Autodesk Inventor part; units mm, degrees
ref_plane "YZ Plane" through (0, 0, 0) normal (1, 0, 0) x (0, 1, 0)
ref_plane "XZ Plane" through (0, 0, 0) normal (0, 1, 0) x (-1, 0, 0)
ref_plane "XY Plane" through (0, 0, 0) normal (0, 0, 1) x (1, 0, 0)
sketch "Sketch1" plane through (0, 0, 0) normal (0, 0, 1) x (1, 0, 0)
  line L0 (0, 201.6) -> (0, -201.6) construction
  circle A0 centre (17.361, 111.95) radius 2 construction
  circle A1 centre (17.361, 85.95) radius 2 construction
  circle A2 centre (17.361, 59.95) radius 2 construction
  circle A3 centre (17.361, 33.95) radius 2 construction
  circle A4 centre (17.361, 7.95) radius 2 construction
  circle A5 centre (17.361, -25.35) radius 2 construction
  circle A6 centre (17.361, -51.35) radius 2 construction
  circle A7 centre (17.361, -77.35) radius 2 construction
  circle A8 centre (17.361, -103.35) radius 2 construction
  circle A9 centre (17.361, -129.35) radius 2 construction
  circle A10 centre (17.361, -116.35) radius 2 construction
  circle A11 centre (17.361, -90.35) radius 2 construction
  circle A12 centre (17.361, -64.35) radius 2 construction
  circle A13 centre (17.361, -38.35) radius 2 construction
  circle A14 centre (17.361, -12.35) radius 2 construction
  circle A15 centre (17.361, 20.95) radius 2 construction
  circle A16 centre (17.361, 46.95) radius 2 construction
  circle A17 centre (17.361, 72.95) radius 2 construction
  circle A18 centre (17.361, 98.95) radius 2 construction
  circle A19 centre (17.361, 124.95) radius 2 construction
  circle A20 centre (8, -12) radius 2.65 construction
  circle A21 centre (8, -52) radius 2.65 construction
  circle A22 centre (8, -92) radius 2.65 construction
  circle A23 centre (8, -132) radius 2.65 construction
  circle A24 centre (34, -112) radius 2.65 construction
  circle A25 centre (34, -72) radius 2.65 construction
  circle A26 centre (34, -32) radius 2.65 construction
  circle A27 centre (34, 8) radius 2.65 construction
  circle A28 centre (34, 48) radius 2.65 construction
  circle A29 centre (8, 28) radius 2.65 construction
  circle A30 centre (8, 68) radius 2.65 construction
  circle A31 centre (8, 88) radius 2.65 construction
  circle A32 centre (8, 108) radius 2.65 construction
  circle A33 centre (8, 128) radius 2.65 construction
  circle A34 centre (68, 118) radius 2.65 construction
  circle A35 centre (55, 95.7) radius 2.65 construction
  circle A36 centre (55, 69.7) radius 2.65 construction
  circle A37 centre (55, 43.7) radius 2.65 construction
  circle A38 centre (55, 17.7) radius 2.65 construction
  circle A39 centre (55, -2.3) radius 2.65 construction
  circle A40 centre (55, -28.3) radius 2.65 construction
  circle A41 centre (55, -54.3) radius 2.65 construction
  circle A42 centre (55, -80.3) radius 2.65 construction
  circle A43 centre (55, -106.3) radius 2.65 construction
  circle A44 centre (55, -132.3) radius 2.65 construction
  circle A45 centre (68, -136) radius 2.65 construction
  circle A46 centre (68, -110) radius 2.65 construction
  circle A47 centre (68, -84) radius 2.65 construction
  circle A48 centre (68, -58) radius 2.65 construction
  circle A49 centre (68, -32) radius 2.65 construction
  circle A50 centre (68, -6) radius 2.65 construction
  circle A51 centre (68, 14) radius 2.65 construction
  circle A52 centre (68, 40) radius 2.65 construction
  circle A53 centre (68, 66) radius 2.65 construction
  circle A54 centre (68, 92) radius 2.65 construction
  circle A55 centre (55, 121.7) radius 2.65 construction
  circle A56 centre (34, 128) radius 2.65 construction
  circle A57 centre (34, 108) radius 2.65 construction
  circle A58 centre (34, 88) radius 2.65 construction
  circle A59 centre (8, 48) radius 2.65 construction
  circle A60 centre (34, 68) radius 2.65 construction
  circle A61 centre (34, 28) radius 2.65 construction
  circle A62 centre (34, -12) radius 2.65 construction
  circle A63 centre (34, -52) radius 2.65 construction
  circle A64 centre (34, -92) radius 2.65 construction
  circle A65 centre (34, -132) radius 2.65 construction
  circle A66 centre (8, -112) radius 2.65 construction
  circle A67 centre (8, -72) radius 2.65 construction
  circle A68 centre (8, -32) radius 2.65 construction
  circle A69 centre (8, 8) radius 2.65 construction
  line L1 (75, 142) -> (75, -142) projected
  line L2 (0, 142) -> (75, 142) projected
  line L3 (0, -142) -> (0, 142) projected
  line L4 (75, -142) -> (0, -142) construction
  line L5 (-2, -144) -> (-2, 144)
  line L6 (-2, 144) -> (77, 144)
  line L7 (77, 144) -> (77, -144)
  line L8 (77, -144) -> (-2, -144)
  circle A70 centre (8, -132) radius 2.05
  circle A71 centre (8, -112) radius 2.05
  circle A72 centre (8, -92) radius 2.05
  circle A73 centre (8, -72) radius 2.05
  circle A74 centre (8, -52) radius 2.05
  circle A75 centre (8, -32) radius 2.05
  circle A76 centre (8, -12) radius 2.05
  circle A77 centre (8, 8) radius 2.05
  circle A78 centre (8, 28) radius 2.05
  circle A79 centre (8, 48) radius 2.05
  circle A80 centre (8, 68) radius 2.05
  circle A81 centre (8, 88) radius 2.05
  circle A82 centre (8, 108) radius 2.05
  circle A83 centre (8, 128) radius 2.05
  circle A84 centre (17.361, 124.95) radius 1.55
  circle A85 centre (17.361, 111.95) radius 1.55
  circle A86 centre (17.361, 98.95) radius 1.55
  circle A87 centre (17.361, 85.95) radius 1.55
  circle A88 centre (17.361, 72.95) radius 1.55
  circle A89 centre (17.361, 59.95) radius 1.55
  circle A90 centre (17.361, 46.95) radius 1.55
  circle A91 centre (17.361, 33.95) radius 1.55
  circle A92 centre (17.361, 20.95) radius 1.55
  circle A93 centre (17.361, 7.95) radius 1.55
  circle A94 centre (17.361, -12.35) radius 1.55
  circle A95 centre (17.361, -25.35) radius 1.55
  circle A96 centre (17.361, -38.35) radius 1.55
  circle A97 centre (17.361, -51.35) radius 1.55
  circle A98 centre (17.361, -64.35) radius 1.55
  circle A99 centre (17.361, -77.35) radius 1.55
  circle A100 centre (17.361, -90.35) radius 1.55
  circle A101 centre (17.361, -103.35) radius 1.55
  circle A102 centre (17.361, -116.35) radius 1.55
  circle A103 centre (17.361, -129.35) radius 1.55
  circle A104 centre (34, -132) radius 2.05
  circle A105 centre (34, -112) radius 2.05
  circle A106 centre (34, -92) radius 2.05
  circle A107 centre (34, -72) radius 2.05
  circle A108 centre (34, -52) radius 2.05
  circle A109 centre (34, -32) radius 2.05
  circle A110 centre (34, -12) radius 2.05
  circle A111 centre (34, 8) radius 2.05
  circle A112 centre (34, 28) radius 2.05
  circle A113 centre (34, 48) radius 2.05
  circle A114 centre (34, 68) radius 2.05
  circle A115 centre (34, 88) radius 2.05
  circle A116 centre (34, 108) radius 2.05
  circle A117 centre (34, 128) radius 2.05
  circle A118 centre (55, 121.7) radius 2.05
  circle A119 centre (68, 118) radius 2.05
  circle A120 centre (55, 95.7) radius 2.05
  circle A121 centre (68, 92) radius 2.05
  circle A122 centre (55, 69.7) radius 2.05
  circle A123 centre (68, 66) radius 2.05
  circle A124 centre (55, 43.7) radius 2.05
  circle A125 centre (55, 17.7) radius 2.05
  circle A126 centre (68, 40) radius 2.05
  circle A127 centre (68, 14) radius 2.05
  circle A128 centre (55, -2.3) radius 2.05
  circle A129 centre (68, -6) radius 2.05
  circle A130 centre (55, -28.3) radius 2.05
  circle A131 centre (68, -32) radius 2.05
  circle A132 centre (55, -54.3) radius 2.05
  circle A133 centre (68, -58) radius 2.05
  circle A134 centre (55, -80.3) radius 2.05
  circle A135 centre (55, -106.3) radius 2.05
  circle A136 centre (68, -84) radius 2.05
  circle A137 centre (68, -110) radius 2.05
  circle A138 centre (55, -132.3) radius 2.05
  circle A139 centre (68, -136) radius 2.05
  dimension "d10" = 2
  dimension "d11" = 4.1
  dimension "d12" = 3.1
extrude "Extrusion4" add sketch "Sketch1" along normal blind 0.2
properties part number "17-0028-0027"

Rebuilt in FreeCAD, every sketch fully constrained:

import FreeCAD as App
import Part
import Sketcher

V = App.Vector
Q = App.Units.Quantity


def add_polygon(sketch, points):
    """Adds a closed chain of lines whose ends are joined by coincident constraints."""
    first, n = sketch.GeometryCount, len(points)
    for a, b in zip(points, points[1:] + points[:1]):
        sketch.addGeometry(Part.LineSegment(App.Vector(*a, 0), App.Vector(*b, 0)), False)
    for i in range(n):
        sketch.addConstraint(Sketcher.Constraint("Coincident", first + i, 2, first + (i + 1) % n, 1))

doc = App.newDocument("Part")
body = doc.addObject("PartDesign::Body", "Body")

# Sketch on XY plane
sketch1 = body.newObject("Sketcher::SketchObject", "Sketch")
sketch1.AttachmentSupport = (doc.getObject("XY_Plane"), [""])
sketch1.MapMode = "FlatFace"
add_polygon(sketch1, [(-2, 144), (-2, -144), (77, -144), (77, 144)])  # lines 0-3
sketch1.addGeometry(Part.Circle(V(8, -132, 0), V(0, 0, 1), 2), False)  # 4
sketch1.addGeometry(Part.Circle(V(17.4, -129.3, 0), V(0, 0, 1), 1.6), False)  # 5
sketch1.addGeometry(Part.Circle(V(8, -112, 0), V(0, 0, 1), 2), False)  # 6
sketch1.addGeometry(Part.Circle(V(17.4, -116.3, 0), V(0, 0, 1), 1.6), False)  # 7
sketch1.addGeometry(Part.Circle(V(8, -92, 0), V(0, 0, 1), 2), False)  # 8
sketch1.addGeometry(Part.Circle(V(17.4, -103.3, 0), V(0, 0, 1), 1.6), False)  # 9
sketch1.addGeometry(Part.Circle(V(17.4, -90.3, 0), V(0, 0, 1), 1.6), False)  # 10
sketch1.addGeometry(Part.Circle(V(17.4, -77.3, 0), V(0, 0, 1), 1.6), False)  # 11
sketch1.addGeometry(Part.Circle(V(34, -132, 0), V(0, 0, 1), 2), False)  # 12
sketch1.addGeometry(Part.Circle(V(34, -112, 0), V(0, 0, 1), 2), False)  # 13
sketch1.addGeometry(Part.Circle(V(34, -92, 0), V(0, 0, 1), 2), False)  # 14
sketch1.addGeometry(Part.Circle(V(8, -72, 0), V(0, 0, 1), 2), False)  # 15
sketch1.addGeometry(Part.Circle(V(17.4, -64.3, 0), V(0, 0, 1), 1.6), False)  # 16
sketch1.addGeometry(Part.Circle(V(8, -52, 0), V(0, 0, 1), 2), False)  # 17
sketch1.addGeometry(Part.Circle(V(17.4, -51.4, 0), V(0, 0, 1), 1.6), False)  # 18
sketch1.addGeometry(Part.Circle(V(17.4, -38.4, 0), V(0, 0, 1), 1.6), False)  # 19
sketch1.addGeometry(Part.Circle(V(8, -32, 0), V(0, 0, 1), 2), False)  # 20
sketch1.addGeometry(Part.Circle(V(17.4, -25.4, 0), V(0, 0, 1), 1.6), False)  # 21
sketch1.addGeometry(Part.Circle(V(8, -12, 0), V(0, 0, 1), 2), False)  # 22
sketch1.addGeometry(Part.Circle(V(17.4, -12.3, 0), V(0, 0, 1), 1.6), False)  # 23
sketch1.addGeometry(Part.Circle(V(34, -72, 0), V(0, 0, 1), 2), False)  # 24
sketch1.addGeometry(Part.Circle(V(34, -52, 0), V(0, 0, 1), 2), False)  # 25
sketch1.addGeometry(Part.Circle(V(34, -32, 0), V(0, 0, 1), 2), False)  # 26
sketch1.addGeometry(Part.Circle(V(34, -12, 0), V(0, 0, 1), 2), False)  # 27
sketch1.addGeometry(Part.Circle(V(55, -132.3, 0), V(0, 0, 1), 2), False)  # 28
sketch1.addGeometry(Part.Circle(V(55, -106.3, 0), V(0, 0, 1), 2), False)  # 29
sketch1.addGeometry(Part.Circle(V(55, -80.3, 0), V(0, 0, 1), 2), False)  # 30
sketch1.addGeometry(Part.Circle(V(68, -136, 0), V(0, 0, 1), 2), False)  # 31
sketch1.addGeometry(Part.Circle(V(68, -110, 0), V(0, 0, 1), 2), False)  # 32
sketch1.addGeometry(Part.Circle(V(68, -84, 0), V(0, 0, 1), 2), False)  # 33
sketch1.addGeometry(Part.Circle(V(55, -54.3, 0), V(0, 0, 1), 2), False)  # 34
sketch1.addGeometry(Part.Circle(V(55, -28.3, 0), V(0, 0, 1), 2), False)  # 35
sketch1.addGeometry(Part.Circle(V(55, -2.3, 0), V(0, 0, 1), 2), False)  # 36
sketch1.addGeometry(Part.Circle(V(68, -58, 0), V(0, 0, 1), 2), False)  # 37
sketch1.addGeometry(Part.Circle(V(68, -32, 0), V(0, 0, 1), 2), False)  # 38
sketch1.addGeometry(Part.Circle(V(68, -6, 0), V(0, 0, 1), 2), False)  # 39
sketch1.addGeometry(Part.Circle(V(8, 8, 0), V(0, 0, 1), 2), False)  # 40
sketch1.addGeometry(Part.Circle(V(17.4, 8, 0), V(0, 0, 1), 1.6), False)  # 41
sketch1.addGeometry(Part.Circle(V(8, 28, 0), V(0, 0, 1), 2), False)  # 42
sketch1.addGeometry(Part.Circle(V(17.4, 20.9, 0), V(0, 0, 1), 1.6), False)  # 43
sketch1.addGeometry(Part.Circle(V(17.4, 34, 0), V(0, 0, 1), 1.6), False)  # 44
sketch1.addGeometry(Part.Circle(V(8, 48, 0), V(0, 0, 1), 2), False)  # 45
sketch1.addGeometry(Part.Circle(V(17.4, 47, 0), V(0, 0, 1), 1.6), False)  # 46
sketch1.addGeometry(Part.Circle(V(8, 68, 0), V(0, 0, 1), 2), False)  # 47
sketch1.addGeometry(Part.Circle(V(17.4, 60, 0), V(0, 0, 1), 1.6), False)  # 48
sketch1.addGeometry(Part.Circle(V(34, 8, 0), V(0, 0, 1), 2), False)  # 49
sketch1.addGeometry(Part.Circle(V(34, 28, 0), V(0, 0, 1), 2), False)  # 50
sketch1.addGeometry(Part.Circle(V(34, 48, 0), V(0, 0, 1), 2), False)  # 51
sketch1.addGeometry(Part.Circle(V(34, 68, 0), V(0, 0, 1), 2), False)  # 52
sketch1.addGeometry(Part.Circle(V(8, 88, 0), V(0, 0, 1), 2), False)  # 53
sketch1.addGeometry(Part.Circle(V(17.4, 73, 0), V(0, 0, 1), 1.6), False)  # 54
sketch1.addGeometry(Part.Circle(V(17.4, 86, 0), V(0, 0, 1), 1.6), False)  # 55
sketch1.addGeometry(Part.Circle(V(17.4, 99, 0), V(0, 0, 1), 1.6), False)  # 56
sketch1.addGeometry(Part.Circle(V(8, 108, 0), V(0, 0, 1), 2), False)  # 57
sketch1.addGeometry(Part.Circle(V(17.4, 112, 0), V(0, 0, 1), 1.6), False)  # 58
sketch1.addGeometry(Part.Circle(V(17.4, 125, 0), V(0, 0, 1), 1.6), False)  # 59
sketch1.addGeometry(Part.Circle(V(8, 128, 0), V(0, 0, 1), 2), False)  # 60
sketch1.addGeometry(Part.Circle(V(34, 88, 0), V(0, 0, 1), 2), False)  # 61
sketch1.addGeometry(Part.Circle(V(34, 108, 0), V(0, 0, 1), 2), False)  # 62
sketch1.addGeometry(Part.Circle(V(34, 128, 0), V(0, 0, 1), 2), False)  # 63
sketch1.addGeometry(Part.Circle(V(55, 17.7, 0), V(0, 0, 1), 2), False)  # 64
sketch1.addGeometry(Part.Circle(V(55, 43.7, 0), V(0, 0, 1), 2), False)  # 65
sketch1.addGeometry(Part.Circle(V(55, 69.7, 0), V(0, 0, 1), 2), False)  # 66
sketch1.addGeometry(Part.Circle(V(68, 14, 0), V(0, 0, 1), 2), False)  # 67
sketch1.addGeometry(Part.Circle(V(68, 40, 0), V(0, 0, 1), 2), False)  # 68
sketch1.addGeometry(Part.Circle(V(68, 66, 0), V(0, 0, 1), 2), False)  # 69
sketch1.addGeometry(Part.Circle(V(55, 95.7, 0), V(0, 0, 1), 2), False)  # 70
sketch1.addGeometry(Part.Circle(V(55, 121.7, 0), V(0, 0, 1), 2), False)  # 71
sketch1.addGeometry(Part.Circle(V(68, 92, 0), V(0, 0, 1), 2), False)  # 72
sketch1.addGeometry(Part.Circle(V(68, 118, 0), V(0, 0, 1), 2), False)  # 73
sketch1.addConstraint([
    Sketcher.Constraint("Vertical", 0),
    Sketcher.Constraint("Horizontal", 1),
    Sketcher.Constraint("Vertical", 2),
    Sketcher.Constraint("Horizontal", 3),
    Sketcher.Constraint("Equal", 4, 6),
    Sketcher.Constraint("Equal", 5, 7),
    Sketcher.Constraint("Equal", 6, 8),
    Sketcher.Constraint("Equal", 7, 9),
    Sketcher.Constraint("Equal", 9, 10),
    Sketcher.Constraint("Equal", 10, 11),
    Sketcher.Constraint("Equal", 8, 12),
    Sketcher.Constraint("Equal", 12, 13),
    Sketcher.Constraint("Equal", 13, 14),
    Sketcher.Constraint("Equal", 14, 15),
    Sketcher.Constraint("Equal", 11, 16),
    Sketcher.Constraint("Equal", 15, 17),
    Sketcher.Constraint("Equal", 16, 18),
    Sketcher.Constraint("Equal", 18, 19),
    Sketcher.Constraint("Equal", 17, 20),
    Sketcher.Constraint("Equal", 19, 21),
    Sketcher.Constraint("Equal", 20, 22),
    Sketcher.Constraint("Equal", 21, 23),
    Sketcher.Constraint("Equal", 22, 24),
    Sketcher.Constraint("Equal", 24, 25),
    Sketcher.Constraint("Equal", 25, 26),
    Sketcher.Constraint("Equal", 26, 27),
    Sketcher.Constraint("Equal", 27, 28),
    Sketcher.Constraint("Equal", 28, 29),
    Sketcher.Constraint("Equal", 29, 30),
    Sketcher.Constraint("Equal", 30, 31),
    Sketcher.Constraint("Equal", 31, 32),
    Sketcher.Constraint("Equal", 32, 33),
    Sketcher.Constraint("Equal", 33, 34),
    Sketcher.Constraint("Equal", 34, 35),
    Sketcher.Constraint("Equal", 35, 36),
    Sketcher.Constraint("Equal", 36, 37),
    Sketcher.Constraint("Equal", 37, 38),
    Sketcher.Constraint("Equal", 38, 39),
    Sketcher.Constraint("Equal", 39, 40),
    Sketcher.Constraint("Equal", 23, 41),
    Sketcher.Constraint("Equal", 40, 42),
    Sketcher.Constraint("Equal", 41, 43),
    Sketcher.Constraint("Equal", 43, 44),
    Sketcher.Constraint("Equal", 42, 45),
    Sketcher.Constraint("Equal", 44, 46),
    Sketcher.Constraint("Equal", 45, 47),
    Sketcher.Constraint("Equal", 46, 48),
    Sketcher.Constraint("Equal", 47, 49),
    Sketcher.Constraint("Equal", 49, 50),
    Sketcher.Constraint("Equal", 50, 51),
    Sketcher.Constraint("Equal", 51, 52),
    Sketcher.Constraint("Equal", 52, 53),
    Sketcher.Constraint("Equal", 48, 54),
    Sketcher.Constraint("Equal", 54, 55),
    Sketcher.Constraint("Equal", 55, 56),
    Sketcher.Constraint("Equal", 53, 57),
    Sketcher.Constraint("Equal", 56, 58),
    Sketcher.Constraint("Equal", 58, 59),
    Sketcher.Constraint("Equal", 57, 60),
    Sketcher.Constraint("Equal", 60, 61),
    Sketcher.Constraint("Equal", 61, 62),
    Sketcher.Constraint("Equal", 62, 63),
    Sketcher.Constraint("Equal", 63, 64),
    Sketcher.Constraint("Equal", 64, 65),
    Sketcher.Constraint("Equal", 65, 66),
    Sketcher.Constraint("Equal", 66, 67),
    Sketcher.Constraint("Equal", 67, 68),
    Sketcher.Constraint("Equal", 68, 69),
    Sketcher.Constraint("Equal", 69, 70),
    Sketcher.Constraint("Equal", 70, 71),
    Sketcher.Constraint("Equal", 71, 72),
    Sketcher.Constraint("Equal", 72, 73),
    Sketcher.Constraint("Horizontal", 4, 3, 12, 3),
    Sketcher.Constraint("Horizontal", 6, 3, 13, 3),
    Sketcher.Constraint("Horizontal", 8, 3, 14, 3),
    Sketcher.Constraint("Horizontal", 15, 3, 24, 3),
    Sketcher.Constraint("Horizontal", 17, 3, 25, 3),
    Sketcher.Constraint("Horizontal", 20, 3, 26, 3),
    Sketcher.Constraint("Horizontal", 22, 3, 27, 3),
    Sketcher.Constraint("Horizontal", 26, 3, 38, 3),
    Sketcher.Constraint("Horizontal", 40, 3, 49, 3),
    Sketcher.Constraint("Horizontal", 42, 3, 50, 3),
    Sketcher.Constraint("Horizontal", 45, 3, 51, 3),
    Sketcher.Constraint("Horizontal", 47, 3, 52, 3),
    Sketcher.Constraint("Horizontal", 53, 3, 61, 3),
    Sketcher.Constraint("Horizontal", 57, 3, 62, 3),
    Sketcher.Constraint("Horizontal", 60, 3, 63, 3),
    Sketcher.Constraint("Vertical", 4, 3, 6, 3),
    Sketcher.Constraint("Vertical", 5, 3, 7, 3),
    Sketcher.Constraint("Vertical", 6, 3, 8, 3),
    Sketcher.Constraint("Vertical", 7, 3, 9, 3),
    Sketcher.Constraint("Vertical", 9, 3, 10, 3),
    Sketcher.Constraint("Vertical", 10, 3, 11, 3),
    Sketcher.Constraint("Vertical", 12, 3, 13, 3),
    Sketcher.Constraint("Vertical", 13, 3, 14, 3),
    Sketcher.Constraint("Vertical", 8, 3, 15, 3),
    Sketcher.Constraint("Vertical", 11, 3, 16, 3),
    Sketcher.Constraint("Vertical", 15, 3, 17, 3),
    Sketcher.Constraint("Vertical", 16, 3, 18, 3),
    Sketcher.Constraint("Vertical", 18, 3, 19, 3),
    Sketcher.Constraint("Vertical", 17, 3, 20, 3),
    Sketcher.Constraint("Vertical", 19, 3, 21, 3),
    Sketcher.Constraint("Vertical", 20, 3, 22, 3),
    Sketcher.Constraint("Vertical", 21, 3, 23, 3),
    Sketcher.Constraint("Vertical", 14, 3, 24, 3),
    Sketcher.Constraint("Vertical", 24, 3, 25, 3),
    Sketcher.Constraint("Vertical", 25, 3, 26, 3),
    Sketcher.Constraint("Vertical", 26, 3, 27, 3),
    Sketcher.Constraint("Vertical", 28, 3, 29, 3),
    Sketcher.Constraint("Vertical", 29, 3, 30, 3),
    Sketcher.Constraint("Vertical", 31, 3, 32, 3),
    Sketcher.Constraint("Vertical", 32, 3, 33, 3),
    Sketcher.Constraint("Vertical", 30, 3, 34, 3),
    Sketcher.Constraint("Vertical", 34, 3, 35, 3),
    Sketcher.Constraint("Vertical", 35, 3, 36, 3),
    Sketcher.Constraint("Vertical", 33, 3, 37, 3),
    Sketcher.Constraint("Vertical", 37, 3, 38, 3),
    Sketcher.Constraint("Vertical", 38, 3, 39, 3),
    Sketcher.Constraint("Vertical", 22, 3, 40, 3),
    Sketcher.Constraint("Vertical", 23, 3, 41, 3),
    Sketcher.Constraint("Vertical", 40, 3, 42, 3),
    Sketcher.Constraint("Vertical", 41, 3, 43, 3),
    Sketcher.Constraint("Vertical", 43, 3, 44, 3),
    Sketcher.Constraint("Vertical", 42, 3, 45, 3),
    Sketcher.Constraint("Vertical", 44, 3, 46, 3),
    Sketcher.Constraint("Vertical", 45, 3, 47, 3),
    Sketcher.Constraint("Vertical", 46, 3, 48, 3),
    Sketcher.Constraint("Vertical", 27, 3, 49, 3),
    Sketcher.Constraint("Vertical", 49, 3, 50, 3),
    Sketcher.Constraint("Vertical", 50, 3, 51, 3),
    Sketcher.Constraint("Vertical", 51, 3, 52, 3),
    Sketcher.Constraint("Vertical", 47, 3, 53, 3),
    Sketcher.Constraint("Vertical", 48, 3, 54, 3),
    Sketcher.Constraint("Vertical", 54, 3, 55, 3),
    Sketcher.Constraint("Vertical", 55, 3, 56, 3),
    Sketcher.Constraint("Vertical", 53, 3, 57, 3),
    Sketcher.Constraint("Vertical", 56, 3, 58, 3),
    Sketcher.Constraint("Vertical", 58, 3, 59, 3),
    Sketcher.Constraint("Vertical", 57, 3, 60, 3),
    Sketcher.Constraint("Vertical", 52, 3, 61, 3),
    Sketcher.Constraint("Vertical", 61, 3, 62, 3),
    Sketcher.Constraint("Vertical", 62, 3, 63, 3),
    Sketcher.Constraint("Vertical", 36, 3, 64, 3),
    Sketcher.Constraint("Vertical", 64, 3, 65, 3),
    Sketcher.Constraint("Vertical", 65, 3, 66, 3),
    Sketcher.Constraint("Vertical", 39, 3, 67, 3),
    Sketcher.Constraint("Vertical", 67, 3, 68, 3),
    Sketcher.Constraint("Vertical", 68, 3, 69, 3),
    Sketcher.Constraint("Vertical", 66, 3, 70, 3),
    Sketcher.Constraint("Vertical", 70, 3, 71, 3),
    Sketcher.Constraint("Vertical", 69, 3, 72, 3),
    Sketcher.Constraint("Vertical", 72, 3, 73, 3),
    Sketcher.Constraint("Diameter", 4, Q("4.1 mm")),
    Sketcher.Constraint("Diameter", 5, Q("3.1 mm")),
    Sketcher.Constraint("DistanceX", 0, 2, -1, 1, Q("2 mm")),
    Sketcher.Constraint("DistanceX", 1, 1, 1, 2, Q("79 mm")),
    Sketcher.Constraint("DistanceY", 0, 2, 0, 1, Q("288 mm")),
    Sketcher.Constraint("DistanceX", -1, 1, 4, 3, Q("8 mm")),
    Sketcher.Constraint("DistanceY", 4, 3, -1, 1, Q("132 mm")),
    Sketcher.Constraint("DistanceY", 6, 3, -1, 1, Q("112 mm")),
    Sketcher.Constraint("DistanceY", 8, 3, -1, 1, Q("92 mm")),
    Sketcher.Constraint("DistanceX", -1, 1, 12, 3, Q("34 mm")),
    Sketcher.Constraint("DistanceY", 15, 3, -1, 1, Q("72 mm")),
    Sketcher.Constraint("DistanceY", 17, 3, -1, 1, Q("52 mm")),
    Sketcher.Constraint("DistanceY", 20, 3, -1, 1, Q("32 mm")),
    Sketcher.Constraint("DistanceY", 22, 3, -1, 1, Q("12 mm")),
    Sketcher.Constraint("DistanceX", -1, 1, 28, 3, Q("55 mm")),
    Sketcher.Constraint("DistanceX", -1, 1, 31, 3, Q("68 mm")),
    Sketcher.Constraint("DistanceY", 31, 3, -1, 1, Q("136 mm")),
    Sketcher.Constraint("DistanceY", 32, 3, -1, 1, Q("110 mm")),
    Sketcher.Constraint("DistanceY", 33, 3, -1, 1, Q("84 mm")),
    Sketcher.Constraint("DistanceY", 37, 3, -1, 1, Q("58 mm")),
    Sketcher.Constraint("DistanceY", 39, 3, -1, 1, Q("6 mm")),
    Sketcher.Constraint("DistanceY", -1, 1, 40, 3, Q("8 mm")),
    Sketcher.Constraint("DistanceY", -1, 1, 42, 3, Q("28 mm")),
    Sketcher.Constraint("DistanceY", -1, 1, 45, 3, Q("48 mm")),
    Sketcher.Constraint("DistanceY", -1, 1, 47, 3, Q("68 mm")),
    Sketcher.Constraint("DistanceY", -1, 1, 53, 3, Q("88 mm")),
    Sketcher.Constraint("DistanceY", -1, 1, 57, 3, Q("108 mm")),
    Sketcher.Constraint("DistanceY", -1, 1, 60, 3, Q("128 mm")),
    Sketcher.Constraint("DistanceY", -1, 1, 67, 3, Q("14 mm")),
    Sketcher.Constraint("DistanceY", -1, 1, 68, 3, Q("40 mm")),
    Sketcher.Constraint("DistanceY", -1, 1, 69, 3, Q("66 mm")),
    Sketcher.Constraint("DistanceY", -1, 1, 72, 3, Q("92 mm")),
    Sketcher.Constraint("DistanceY", -1, 1, 73, 3, Q("118 mm")),
    Sketcher.Constraint("DistanceY", 0, 2, -1, 1, Q("144 mm")),
    Sketcher.Constraint("DistanceY", 28, 3, -1, 1, Q("132.3 mm")),
    Sketcher.Constraint("DistanceY", 29, 3, -1, 1, Q("106.3 mm")),
    Sketcher.Constraint("DistanceY", 30, 3, -1, 1, Q("80.3 mm")),
    Sketcher.Constraint("DistanceY", 34, 3, -1, 1, Q("54.3 mm")),
    Sketcher.Constraint("DistanceY", 35, 3, -1, 1, Q("28.3 mm")),
    Sketcher.Constraint("DistanceY", 36, 3, -1, 1, Q("2.3 mm")),
    Sketcher.Constraint("DistanceY", -1, 1, 64, 3, Q("17.7 mm")),
    Sketcher.Constraint("DistanceY", -1, 1, 65, 3, Q("43.7 mm")),
    Sketcher.Constraint("DistanceY", -1, 1, 66, 3, Q("69.7 mm")),
    Sketcher.Constraint("DistanceY", -1, 1, 70, 3, Q("95.7 mm")),
    Sketcher.Constraint("DistanceY", -1, 1, 71, 3, Q("121.7 mm")),
    Sketcher.Constraint("DistanceY", 5, 3, -1, 1, Q("129.35 mm")),
    Sketcher.Constraint("DistanceY", 7, 3, -1, 1, Q("116.35 mm")),
    Sketcher.Constraint("DistanceY", 9, 3, -1, 1, Q("103.35 mm")),
    Sketcher.Constraint("DistanceY", 10, 3, -1, 1, Q("90.35 mm")),
    Sketcher.Constraint("DistanceY", 11, 3, -1, 1, Q("77.35 mm")),
    Sketcher.Constraint("DistanceY", 16, 3, -1, 1, Q("64.35 mm")),
    Sketcher.Constraint("DistanceY", 18, 3, -1, 1, Q("51.35 mm")),
    Sketcher.Constraint("DistanceY", 19, 3, -1, 1, Q("38.35 mm")),
    Sketcher.Constraint("DistanceY", 21, 3, -1, 1, Q("25.35 mm")),
    Sketcher.Constraint("DistanceY", 23, 3, -1, 1, Q("12.35 mm")),
    Sketcher.Constraint("DistanceY", -1, 1, 41, 3, Q("7.95 mm")),
    Sketcher.Constraint("DistanceY", -1, 1, 43, 3, Q("20.95 mm")),
    Sketcher.Constraint("DistanceY", -1, 1, 44, 3, Q("33.95 mm")),
    Sketcher.Constraint("DistanceY", -1, 1, 46, 3, Q("46.95 mm")),
    Sketcher.Constraint("DistanceY", -1, 1, 48, 3, Q("59.95 mm")),
    Sketcher.Constraint("DistanceY", -1, 1, 54, 3, Q("72.95 mm")),
    Sketcher.Constraint("DistanceY", -1, 1, 55, 3, Q("85.95 mm")),
    Sketcher.Constraint("DistanceY", -1, 1, 56, 3, Q("98.95 mm")),
    Sketcher.Constraint("DistanceY", -1, 1, 58, 3, Q("111.95 mm")),
    Sketcher.Constraint("DistanceY", -1, 1, 59, 3, Q("124.95 mm")),
    Sketcher.Constraint("DistanceX", -1, 1, 5, 3, Q("17.361 mm")),
])
pad1 = body.newObject("PartDesign::Pad", "Pad")
pad1.Profile = sketch1
pad1.Length = 0.2

doc.recompute()
